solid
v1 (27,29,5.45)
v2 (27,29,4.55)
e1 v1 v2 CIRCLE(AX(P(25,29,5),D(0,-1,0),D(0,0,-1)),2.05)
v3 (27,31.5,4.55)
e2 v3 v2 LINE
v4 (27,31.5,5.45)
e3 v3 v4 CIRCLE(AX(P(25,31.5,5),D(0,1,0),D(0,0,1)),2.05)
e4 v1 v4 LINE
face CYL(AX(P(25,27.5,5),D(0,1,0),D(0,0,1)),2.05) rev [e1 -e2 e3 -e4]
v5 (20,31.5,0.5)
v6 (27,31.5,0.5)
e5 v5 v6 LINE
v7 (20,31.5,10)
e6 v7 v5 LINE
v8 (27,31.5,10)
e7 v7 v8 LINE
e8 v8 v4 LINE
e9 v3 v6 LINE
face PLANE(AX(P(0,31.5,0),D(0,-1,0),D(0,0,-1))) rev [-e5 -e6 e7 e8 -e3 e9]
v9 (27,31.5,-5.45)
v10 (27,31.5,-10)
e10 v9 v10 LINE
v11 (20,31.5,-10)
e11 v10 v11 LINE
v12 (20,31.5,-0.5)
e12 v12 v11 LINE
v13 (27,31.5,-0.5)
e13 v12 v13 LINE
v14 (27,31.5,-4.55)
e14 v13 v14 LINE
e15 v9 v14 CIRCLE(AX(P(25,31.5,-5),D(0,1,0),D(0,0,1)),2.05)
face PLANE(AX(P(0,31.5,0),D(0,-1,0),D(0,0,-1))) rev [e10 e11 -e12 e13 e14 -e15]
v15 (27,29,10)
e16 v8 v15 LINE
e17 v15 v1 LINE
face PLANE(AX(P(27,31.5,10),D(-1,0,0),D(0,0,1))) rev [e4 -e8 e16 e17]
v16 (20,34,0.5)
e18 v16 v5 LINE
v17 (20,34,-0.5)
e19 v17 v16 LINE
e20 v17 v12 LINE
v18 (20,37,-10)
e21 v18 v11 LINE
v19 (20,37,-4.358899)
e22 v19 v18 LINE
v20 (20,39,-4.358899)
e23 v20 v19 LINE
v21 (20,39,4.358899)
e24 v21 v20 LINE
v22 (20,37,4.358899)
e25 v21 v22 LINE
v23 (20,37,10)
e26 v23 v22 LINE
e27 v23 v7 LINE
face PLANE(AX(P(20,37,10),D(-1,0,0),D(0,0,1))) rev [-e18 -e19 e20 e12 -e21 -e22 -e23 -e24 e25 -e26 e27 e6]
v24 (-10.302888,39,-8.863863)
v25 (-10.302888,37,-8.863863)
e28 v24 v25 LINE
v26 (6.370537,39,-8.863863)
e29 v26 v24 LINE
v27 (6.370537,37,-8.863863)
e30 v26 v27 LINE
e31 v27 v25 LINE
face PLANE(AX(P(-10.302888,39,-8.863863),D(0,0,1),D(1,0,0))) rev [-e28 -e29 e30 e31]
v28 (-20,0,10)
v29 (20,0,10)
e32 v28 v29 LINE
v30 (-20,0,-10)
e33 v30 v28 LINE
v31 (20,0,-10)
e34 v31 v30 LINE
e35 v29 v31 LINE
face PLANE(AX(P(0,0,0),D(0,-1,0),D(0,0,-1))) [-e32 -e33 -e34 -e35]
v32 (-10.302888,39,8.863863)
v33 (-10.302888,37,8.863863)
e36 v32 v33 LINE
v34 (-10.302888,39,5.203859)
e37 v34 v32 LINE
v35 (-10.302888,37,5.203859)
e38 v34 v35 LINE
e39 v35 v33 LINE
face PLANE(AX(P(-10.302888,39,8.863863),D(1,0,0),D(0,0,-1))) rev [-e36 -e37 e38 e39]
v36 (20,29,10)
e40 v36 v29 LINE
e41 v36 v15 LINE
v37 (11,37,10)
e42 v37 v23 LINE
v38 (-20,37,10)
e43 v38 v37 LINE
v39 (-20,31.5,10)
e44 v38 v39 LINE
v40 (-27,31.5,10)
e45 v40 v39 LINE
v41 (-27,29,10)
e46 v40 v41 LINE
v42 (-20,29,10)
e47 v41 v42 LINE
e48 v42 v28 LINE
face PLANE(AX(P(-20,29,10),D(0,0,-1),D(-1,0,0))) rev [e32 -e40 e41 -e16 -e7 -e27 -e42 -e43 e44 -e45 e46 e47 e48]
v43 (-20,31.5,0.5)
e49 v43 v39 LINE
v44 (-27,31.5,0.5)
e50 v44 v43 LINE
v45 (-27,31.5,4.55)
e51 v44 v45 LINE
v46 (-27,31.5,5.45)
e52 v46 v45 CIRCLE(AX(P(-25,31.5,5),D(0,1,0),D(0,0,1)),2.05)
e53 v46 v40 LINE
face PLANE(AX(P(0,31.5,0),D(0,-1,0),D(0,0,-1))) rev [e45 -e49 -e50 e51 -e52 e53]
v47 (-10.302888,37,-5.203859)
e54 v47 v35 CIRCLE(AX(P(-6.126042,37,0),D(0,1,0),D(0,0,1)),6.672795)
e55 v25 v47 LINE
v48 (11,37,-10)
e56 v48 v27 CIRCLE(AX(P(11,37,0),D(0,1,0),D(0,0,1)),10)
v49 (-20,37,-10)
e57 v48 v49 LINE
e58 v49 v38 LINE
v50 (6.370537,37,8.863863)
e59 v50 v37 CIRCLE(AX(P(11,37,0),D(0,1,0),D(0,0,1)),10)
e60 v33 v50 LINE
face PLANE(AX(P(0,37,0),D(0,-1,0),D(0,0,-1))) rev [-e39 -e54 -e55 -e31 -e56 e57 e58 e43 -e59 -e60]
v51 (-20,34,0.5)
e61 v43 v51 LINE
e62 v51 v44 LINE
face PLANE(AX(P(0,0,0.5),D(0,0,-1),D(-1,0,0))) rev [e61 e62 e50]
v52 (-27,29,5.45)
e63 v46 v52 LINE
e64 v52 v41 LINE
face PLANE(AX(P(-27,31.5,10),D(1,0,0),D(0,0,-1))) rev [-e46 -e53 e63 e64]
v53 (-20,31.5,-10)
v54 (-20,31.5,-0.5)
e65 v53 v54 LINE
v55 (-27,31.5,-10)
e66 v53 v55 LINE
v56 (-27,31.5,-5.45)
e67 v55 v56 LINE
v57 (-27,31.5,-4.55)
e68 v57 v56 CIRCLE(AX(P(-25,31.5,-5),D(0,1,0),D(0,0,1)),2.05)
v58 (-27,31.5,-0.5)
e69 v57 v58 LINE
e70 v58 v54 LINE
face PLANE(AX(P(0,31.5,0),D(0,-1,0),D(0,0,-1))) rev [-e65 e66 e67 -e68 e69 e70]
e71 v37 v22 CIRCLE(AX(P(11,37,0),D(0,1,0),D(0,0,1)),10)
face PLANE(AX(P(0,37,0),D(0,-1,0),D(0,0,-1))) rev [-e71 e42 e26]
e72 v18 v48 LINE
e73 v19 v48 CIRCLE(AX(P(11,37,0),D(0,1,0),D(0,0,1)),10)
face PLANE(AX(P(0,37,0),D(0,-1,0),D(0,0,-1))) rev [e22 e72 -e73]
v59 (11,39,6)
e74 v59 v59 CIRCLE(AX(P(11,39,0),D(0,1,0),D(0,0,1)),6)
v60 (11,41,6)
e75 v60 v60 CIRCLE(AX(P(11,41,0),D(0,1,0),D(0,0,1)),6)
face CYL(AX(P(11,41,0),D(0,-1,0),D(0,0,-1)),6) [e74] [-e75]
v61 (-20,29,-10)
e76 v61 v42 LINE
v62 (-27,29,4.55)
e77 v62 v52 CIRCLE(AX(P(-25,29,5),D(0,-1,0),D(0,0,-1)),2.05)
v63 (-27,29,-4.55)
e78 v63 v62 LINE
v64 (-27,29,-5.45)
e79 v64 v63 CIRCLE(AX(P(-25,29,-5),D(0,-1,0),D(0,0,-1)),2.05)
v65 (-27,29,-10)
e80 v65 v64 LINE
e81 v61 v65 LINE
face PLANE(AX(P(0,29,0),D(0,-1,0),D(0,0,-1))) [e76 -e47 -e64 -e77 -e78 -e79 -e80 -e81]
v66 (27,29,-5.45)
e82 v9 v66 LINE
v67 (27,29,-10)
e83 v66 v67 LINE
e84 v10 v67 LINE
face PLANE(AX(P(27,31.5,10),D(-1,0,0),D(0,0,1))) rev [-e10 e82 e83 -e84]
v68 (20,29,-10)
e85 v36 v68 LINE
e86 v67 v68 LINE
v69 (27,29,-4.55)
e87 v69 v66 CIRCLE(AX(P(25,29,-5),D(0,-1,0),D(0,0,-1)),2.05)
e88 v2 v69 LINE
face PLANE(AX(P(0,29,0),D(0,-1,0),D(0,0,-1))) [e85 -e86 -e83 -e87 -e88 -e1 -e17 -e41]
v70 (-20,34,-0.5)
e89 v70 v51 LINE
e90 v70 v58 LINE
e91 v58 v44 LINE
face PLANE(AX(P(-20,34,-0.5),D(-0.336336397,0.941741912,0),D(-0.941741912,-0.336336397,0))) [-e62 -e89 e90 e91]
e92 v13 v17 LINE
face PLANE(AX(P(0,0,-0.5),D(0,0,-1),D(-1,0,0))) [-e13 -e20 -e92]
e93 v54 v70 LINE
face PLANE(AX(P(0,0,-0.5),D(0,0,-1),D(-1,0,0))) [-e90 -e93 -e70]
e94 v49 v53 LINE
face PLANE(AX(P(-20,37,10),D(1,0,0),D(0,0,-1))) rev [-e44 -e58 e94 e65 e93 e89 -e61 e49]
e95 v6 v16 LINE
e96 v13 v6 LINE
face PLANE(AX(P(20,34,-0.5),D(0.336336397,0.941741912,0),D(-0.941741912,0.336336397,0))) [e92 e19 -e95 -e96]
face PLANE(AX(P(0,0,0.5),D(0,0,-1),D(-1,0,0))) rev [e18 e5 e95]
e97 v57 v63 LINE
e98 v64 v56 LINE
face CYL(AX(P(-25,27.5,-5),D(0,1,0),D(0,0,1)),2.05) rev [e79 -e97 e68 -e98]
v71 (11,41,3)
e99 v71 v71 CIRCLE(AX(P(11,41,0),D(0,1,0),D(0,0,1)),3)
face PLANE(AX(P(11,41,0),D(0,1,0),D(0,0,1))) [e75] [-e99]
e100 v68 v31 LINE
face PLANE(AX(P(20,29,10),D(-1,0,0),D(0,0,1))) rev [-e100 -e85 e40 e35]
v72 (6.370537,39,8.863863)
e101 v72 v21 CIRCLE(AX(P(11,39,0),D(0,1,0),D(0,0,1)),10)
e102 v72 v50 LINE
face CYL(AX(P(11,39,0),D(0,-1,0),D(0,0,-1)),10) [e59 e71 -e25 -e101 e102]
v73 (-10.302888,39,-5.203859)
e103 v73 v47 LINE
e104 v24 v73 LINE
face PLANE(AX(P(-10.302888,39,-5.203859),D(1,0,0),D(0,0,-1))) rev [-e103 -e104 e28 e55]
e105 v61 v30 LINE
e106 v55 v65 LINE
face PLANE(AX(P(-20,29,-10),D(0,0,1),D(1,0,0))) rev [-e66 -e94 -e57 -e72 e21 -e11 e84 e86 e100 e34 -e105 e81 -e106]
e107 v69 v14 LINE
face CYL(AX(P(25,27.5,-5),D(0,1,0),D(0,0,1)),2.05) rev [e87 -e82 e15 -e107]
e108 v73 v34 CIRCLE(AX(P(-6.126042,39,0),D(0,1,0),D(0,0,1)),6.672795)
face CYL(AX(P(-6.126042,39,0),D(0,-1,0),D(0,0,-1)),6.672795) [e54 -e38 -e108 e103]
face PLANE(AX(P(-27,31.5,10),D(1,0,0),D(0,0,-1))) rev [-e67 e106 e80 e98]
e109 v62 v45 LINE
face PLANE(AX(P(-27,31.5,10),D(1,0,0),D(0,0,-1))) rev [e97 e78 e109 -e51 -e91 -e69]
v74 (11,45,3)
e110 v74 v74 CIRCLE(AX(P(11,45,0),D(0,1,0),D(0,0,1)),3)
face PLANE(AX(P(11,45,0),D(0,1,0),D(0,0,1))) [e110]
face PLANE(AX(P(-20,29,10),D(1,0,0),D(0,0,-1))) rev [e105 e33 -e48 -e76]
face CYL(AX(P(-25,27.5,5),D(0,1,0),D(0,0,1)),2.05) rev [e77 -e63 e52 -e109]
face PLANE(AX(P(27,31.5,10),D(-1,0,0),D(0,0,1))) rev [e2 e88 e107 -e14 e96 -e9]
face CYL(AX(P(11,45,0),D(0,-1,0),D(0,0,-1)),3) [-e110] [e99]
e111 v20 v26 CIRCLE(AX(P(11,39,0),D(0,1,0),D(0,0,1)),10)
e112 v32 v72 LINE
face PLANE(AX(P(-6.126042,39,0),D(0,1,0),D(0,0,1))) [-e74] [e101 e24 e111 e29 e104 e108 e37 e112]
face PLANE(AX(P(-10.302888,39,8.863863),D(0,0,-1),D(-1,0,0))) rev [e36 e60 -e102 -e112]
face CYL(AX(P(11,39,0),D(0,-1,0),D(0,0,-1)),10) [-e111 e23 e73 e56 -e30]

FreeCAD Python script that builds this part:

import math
import FreeCAD as App
import Part
import Sketcher

V = App.Vector


def add_polygon(sketch, points):
    """Adds a closed chain of lines whose ends are joined by coincident constraints."""
    first, n = sketch.GeometryCount, len(points)
    for a, b in zip(points, points[1:] + points[:1]):
        sketch.addGeometry(Part.LineSegment(App.Vector(*a, 0), App.Vector(*b, 0)), False)
    for i in range(n):
        sketch.addConstraint(Sketcher.Constraint("Coincident", first + i, 2, first + (i + 1) % n, 1))

doc = App.newDocument("Part")
body = doc.addObject("PartDesign::Body", "Body")

# Sketch on XZ plane
sketch1 = body.newObject("Sketcher::SketchObject", "Sketch")
sketch1.AttachmentSupport = (doc.getObject("XZ_Plane"), [""])
sketch1.MapMode = "FlatFace"
add_polygon(sketch1, [(-20, -10), (-20, 10), (20, 10), (20, -10)])  # lines 0-3
sketch1.addConstraint(Sketcher.Constraint("Vertical", 0))
sketch1.addConstraint(Sketcher.Constraint("Horizontal", 1))
sketch1.addConstraint(Sketcher.Constraint("Vertical", 2))
sketch1.addConstraint(Sketcher.Constraint("Horizontal", 3))
sketch1.addConstraint(Sketcher.Constraint("Symmetric", 0, 2, 2, 2, -1, 1))
sketch1.addConstraint(Sketcher.Constraint("DistanceX", 1, 1, 1, 2, 40.0))
sketch1.addConstraint(Sketcher.Constraint("DistanceY", 0, 1, 0, 2, 20.0))
pad1 = body.newObject("PartDesign::Pad", "Pad")
pad1.Profile = sketch1
pad1.Length = 29
pad1.Reversed = True

# Sketch on XZ plane
sketch2 = body.newObject("Sketcher::SketchObject", "Sketch001")
sketch2.AttachmentSupport = (doc.getObject("XZ_Plane"), [""])
sketch2.MapMode = "FlatFace"
sketch2.AttachmentOffset = App.Placement(V(0, 0, -29), App.Rotation())
add_polygon(sketch2, [(-27, -10), (-27, 10), (27, 10), (27, -10)])  # lines 0-3
sketch2.addConstraint(Sketcher.Constraint("Vertical", 0))
sketch2.addConstraint(Sketcher.Constraint("Horizontal", 1))
sketch2.addConstraint(Sketcher.Constraint("Vertical", 2))
sketch2.addConstraint(Sketcher.Constraint("Horizontal", 3))
sketch2.addConstraint(Sketcher.Constraint("Symmetric", 0, 2, 2, 2, -1, 1))
sketch2.addConstraint(Sketcher.Constraint("DistanceX", 1, 1, 1, 2, 54.0))
sketch2.addConstraint(Sketcher.Constraint("DistanceY", 0, 1, 0, 2, 20.0))
pad2 = body.newObject("PartDesign::Pad", "Pad001")
pad2.Profile = sketch2
pad2.Length = 2.5
pad2.Reversed = True

# Sketch on XZ plane
sketch3 = body.newObject("Sketcher::SketchObject", "Sketch002")
sketch3.AttachmentSupport = (doc.getObject("XZ_Plane"), [""])
sketch3.MapMode = "FlatFace"
sketch3.AttachmentOffset = App.Placement(V(0, 0, -31.5), App.Rotation())
add_polygon(sketch3, [(-20, -10), (-20, 10), (20, 10), (20, -10)])  # lines 0-3
sketch3.addConstraint(Sketcher.Constraint("Vertical", 0))
sketch3.addConstraint(Sketcher.Constraint("Horizontal", 1))
sketch3.addConstraint(Sketcher.Constraint("Vertical", 2))
sketch3.addConstraint(Sketcher.Constraint("Horizontal", 3))
sketch3.addConstraint(Sketcher.Constraint("Symmetric", 0, 2, 2, 2, -1, 1))
sketch3.addConstraint(Sketcher.Constraint("DistanceX", 1, 1, 1, 2, 40.0))
sketch3.addConstraint(Sketcher.Constraint("DistanceY", 0, 1, 0, 2, 20.0))
pad3 = body.newObject("PartDesign::Pad", "Pad002")
pad3.Profile = sketch3
pad3.Length = 5.5
pad3.Reversed = True

# Sketch on XZ plane
sketch4 = body.newObject("Sketcher::SketchObject", "Sketch003")
sketch4.AttachmentSupport = (doc.getObject("XZ_Plane"), [""])
sketch4.MapMode = "FlatFace"
sketch4.AttachmentOffset = App.Placement(V(0, 0, -37), App.Rotation())
sketch4.addGeometry(Part.LineSegment(V(-10.3, -8.9, 0), V(-10.3, -5.2, 0)), False)
sketch4.addGeometry(Part.ArcOfCircle(Part.Circle(V(-6.1, 0, 0), V(0, 0, 1), 6.7), math.radians(129), math.radians(231)), False)
sketch4.addGeometry(Part.LineSegment(V(-10.3, 5.2, 0), V(-10.3, 8.9, 0)), False)
sketch4.addGeometry(Part.LineSegment(V(-10.3, 8.9, 0), V(6.4, 8.9, 0)), False)
sketch4.addGeometry(Part.ArcOfCircle(Part.Circle(V(11, 0, 0), V(0, 0, 1), 10), math.radians(26), math.radians(118)), False)
sketch4.addGeometry(Part.LineSegment(V(20, 4.4, 0), V(20, -4.4, 0)), False)
sketch4.addGeometry(Part.ArcOfCircle(Part.Circle(V(11, 0, 0), V(0, 0, 1), 10), math.radians(-118), math.radians(-26)), False)
sketch4.addGeometry(Part.LineSegment(V(6.4, -8.9, 0), V(-10.3, -8.9, 0)), False)
sketch4.addConstraint(Sketcher.Constraint("Coincident", 0, 2, 1, 2))
sketch4.addConstraint(Sketcher.Constraint("Coincident", 1, 1, 2, 1))
sketch4.addConstraint(Sketcher.Constraint("Coincident", 2, 2, 3, 1))
sketch4.addConstraint(Sketcher.Constraint("Coincident", 3, 2, 4, 2))
sketch4.addConstraint(Sketcher.Constraint("Coincident", 4, 1, 5, 1))
sketch4.addConstraint(Sketcher.Constraint("Coincident", 5, 2, 6, 2))
sketch4.addConstraint(Sketcher.Constraint("Coincident", 6, 1, 7, 1))
sketch4.addConstraint(Sketcher.Constraint("Coincident", 7, 2, 0, 1))
sketch4.addConstraint(Sketcher.Constraint("Vertical", 0))
sketch4.addConstraint(Sketcher.Constraint("Vertical", 2))
sketch4.addConstraint(Sketcher.Constraint("Horizontal", 3))
sketch4.addConstraint(Sketcher.Constraint("Vertical", 5))
sketch4.addConstraint(Sketcher.Constraint("Horizontal", 7))
sketch4.addConstraint(Sketcher.Constraint("Coincident", 6, 3, 4, 3))
sketch4.addConstraint(Sketcher.Constraint("Equal", 4, 6))
sketch4.addConstraint(Sketcher.Constraint("Symmetric", 0, 2, 1, 1, -1))
sketch4.addConstraint(Sketcher.Constraint("Symmetric", 3, 2, 6, 1, -1))
sketch4.addConstraint(Sketcher.Constraint("Radius", 4, 10.0))
sketch4.addConstraint(Sketcher.Constraint("DistanceX", -1, 1, 4, 3, 11.0))
sketch4.addConstraint(Sketcher.Constraint("DistanceX", -1, 1, 4, 1, 20.0))
sketch4.addConstraint(Sketcher.Constraint("Radius", 1, 6.672795))
sketch4.addConstraint(Sketcher.Constraint("DistanceX", 3, 1, 3, 2, 16.673426))
sketch4.addConstraint(Sketcher.Constraint("DistanceY", 0, 1, 0, 2, 3.660005))
sketch4.addConstraint(Sketcher.Constraint("DistanceX", 1, 3, -1, 1, 6.126042))
pad4 = body.newObject("PartDesign::Pad", "Pad003")
pad4.Profile = sketch4
pad4.Length = 2
pad4.Reversed = True

# Sketch on XZ plane
sketch5 = body.newObject("Sketcher::SketchObject", "Sketch004")
sketch5.AttachmentSupport = (doc.getObject("XZ_Plane"), [""])
sketch5.MapMode = "FlatFace"
sketch5.AttachmentOffset = App.Placement(V(0, 0, -39), App.Rotation())
sketch5.addGeometry(Part.Circle(V(11, 0, 0), V(0, 0, 1), 6), False)
sketch5.addConstraint(Sketcher.Constraint("PointOnObject", 0, 3, -1))
sketch5.addConstraint(Sketcher.Constraint("Diameter", 0, 12.0))
sketch5.addConstraint(Sketcher.Constraint("DistanceX", -1, 1, 0, 3, 11.0))
pad5 = body.newObject("PartDesign::Pad", "Pad004")
pad5.Profile = sketch5
pad5.Length = 2
pad5.Reversed = True

# Sketch on XZ plane
sketch6 = body.newObject("Sketcher::SketchObject", "Sketch005")
sketch6.AttachmentSupport = (doc.getObject("XZ_Plane"), [""])
sketch6.MapMode = "FlatFace"
sketch6.AttachmentOffset = App.Placement(V(0, 0, -41), App.Rotation())
sketch6.addGeometry(Part.Circle(V(11, 0, 0), V(0, 0, 1), 3), False)
sketch6.addConstraint(Sketcher.Constraint("PointOnObject", 0, 3, -1))
sketch6.addConstraint(Sketcher.Constraint("Diameter", 0, 6.0))
sketch6.addConstraint(Sketcher.Constraint("DistanceX", -1, 1, 0, 3, 11.0))
pad6 = body.newObject("PartDesign::Pad", "Pad005")
pad6.Profile = sketch6
pad6.Length = 4
pad6.Reversed = True

# Sketch on XZ plane
sketch7 = body.newObject("Sketcher::SketchObject", "Sketch006")
sketch7.AttachmentSupport = (doc.getObject("XZ_Plane"), [""])
sketch7.MapMode = "FlatFace"
sketch7.AttachmentOffset = App.Placement(V(0, 0, -31.5), App.Rotation())
sketch7.addGeometry(Part.Circle(V(-25, -5, 0), V(0, 0, 1), 2), False)
sketch7.addGeometry(Part.Circle(V(-25, 5, 0), V(0, 0, 1), 2), False)
sketch7.addGeometry(Part.Circle(V(25, -5, 0), V(0, 0, 1), 2), False)
sketch7.addGeometry(Part.Circle(V(25, 5, 0), V(0, 0, 1), 2), False)
sketch7.addConstraint(Sketcher.Constraint("Equal", 0, 1))
sketch7.addConstraint(Sketcher.Constraint("Equal", 1, 2))
sketch7.addConstraint(Sketcher.Constraint("Equal", 2, 3))
sketch7.addConstraint(Sketcher.Constraint("Symmetric", 1, 3, 2, 3, -1, 1))
sketch7.addConstraint(Sketcher.Constraint("Symmetric", 0, 3, 3, 3, -1, 1))
sketch7.addConstraint(Sketcher.Constraint("Symmetric", 0, 3, 2, 3, -2))
sketch7.addConstraint(Sketcher.Constraint("Diameter", 0, 4.1))
sketch7.addConstraint(Sketcher.Constraint("DistanceX", 0, 3, -1, 1, 25.0))
sketch7.addConstraint(Sketcher.Constraint("DistanceY", 0, 3, -1, 1, 5.0))
pocket1 = body.newObject("PartDesign::Pocket", "Pocket")
pocket1.Profile = sketch7
pocket1.Length = 4
pocket1.Reversed = True

# Sketch on XY plane
sketch8 = body.newObject("Sketcher::SketchObject", "Sketch007")
sketch8.AttachmentSupport = (doc.getObject("XY_Plane"), [""])
sketch8.MapMode = "FlatFace"
add_polygon(sketch8, [(-20, 34), (-27, 31.5), (-20, 31.5)])  # lines 0-2
add_polygon(sketch8, [(20, 34), (20, 31.5), (27, 31.5)])  # lines 3-5
sketch8.addConstraint(Sketcher.Constraint("Horizontal", 1))
sketch8.addConstraint(Sketcher.Constraint("Vertical", 2))
sketch8.addConstraint(Sketcher.Constraint("Vertical", 3))
sketch8.addConstraint(Sketcher.Constraint("Horizontal", 4))
sketch8.addConstraint(Sketcher.Constraint("Symmetric", 1, 2, 3, 2, -2))
sketch8.addConstraint(Sketcher.Constraint("Horizontal", 2, 2, 5, 2))
sketch8.addConstraint(Sketcher.Constraint("Equal", 1, 4))
sketch8.addConstraint(Sketcher.Constraint("DistanceX", 1, 1, 1, 2, 7.0))
sketch8.addConstraint(Sketcher.Constraint("DistanceY", 2, 1, 2, 2, 2.5))
sketch8.addConstraint(Sketcher.Constraint("DistanceX", 0, 2, -1, 1, 27.0))
sketch8.addConstraint(Sketcher.Constraint("DistanceY", -1, 1, 2, 2, 34.0))
pad7 = body.newObject("PartDesign::Pad", "Pad006")
pad7.Profile = sketch8
pad7.Type = "TwoLengths"
pad7.Length = 0.5
pad7.Length2 = 0.5

doc.recompute()
